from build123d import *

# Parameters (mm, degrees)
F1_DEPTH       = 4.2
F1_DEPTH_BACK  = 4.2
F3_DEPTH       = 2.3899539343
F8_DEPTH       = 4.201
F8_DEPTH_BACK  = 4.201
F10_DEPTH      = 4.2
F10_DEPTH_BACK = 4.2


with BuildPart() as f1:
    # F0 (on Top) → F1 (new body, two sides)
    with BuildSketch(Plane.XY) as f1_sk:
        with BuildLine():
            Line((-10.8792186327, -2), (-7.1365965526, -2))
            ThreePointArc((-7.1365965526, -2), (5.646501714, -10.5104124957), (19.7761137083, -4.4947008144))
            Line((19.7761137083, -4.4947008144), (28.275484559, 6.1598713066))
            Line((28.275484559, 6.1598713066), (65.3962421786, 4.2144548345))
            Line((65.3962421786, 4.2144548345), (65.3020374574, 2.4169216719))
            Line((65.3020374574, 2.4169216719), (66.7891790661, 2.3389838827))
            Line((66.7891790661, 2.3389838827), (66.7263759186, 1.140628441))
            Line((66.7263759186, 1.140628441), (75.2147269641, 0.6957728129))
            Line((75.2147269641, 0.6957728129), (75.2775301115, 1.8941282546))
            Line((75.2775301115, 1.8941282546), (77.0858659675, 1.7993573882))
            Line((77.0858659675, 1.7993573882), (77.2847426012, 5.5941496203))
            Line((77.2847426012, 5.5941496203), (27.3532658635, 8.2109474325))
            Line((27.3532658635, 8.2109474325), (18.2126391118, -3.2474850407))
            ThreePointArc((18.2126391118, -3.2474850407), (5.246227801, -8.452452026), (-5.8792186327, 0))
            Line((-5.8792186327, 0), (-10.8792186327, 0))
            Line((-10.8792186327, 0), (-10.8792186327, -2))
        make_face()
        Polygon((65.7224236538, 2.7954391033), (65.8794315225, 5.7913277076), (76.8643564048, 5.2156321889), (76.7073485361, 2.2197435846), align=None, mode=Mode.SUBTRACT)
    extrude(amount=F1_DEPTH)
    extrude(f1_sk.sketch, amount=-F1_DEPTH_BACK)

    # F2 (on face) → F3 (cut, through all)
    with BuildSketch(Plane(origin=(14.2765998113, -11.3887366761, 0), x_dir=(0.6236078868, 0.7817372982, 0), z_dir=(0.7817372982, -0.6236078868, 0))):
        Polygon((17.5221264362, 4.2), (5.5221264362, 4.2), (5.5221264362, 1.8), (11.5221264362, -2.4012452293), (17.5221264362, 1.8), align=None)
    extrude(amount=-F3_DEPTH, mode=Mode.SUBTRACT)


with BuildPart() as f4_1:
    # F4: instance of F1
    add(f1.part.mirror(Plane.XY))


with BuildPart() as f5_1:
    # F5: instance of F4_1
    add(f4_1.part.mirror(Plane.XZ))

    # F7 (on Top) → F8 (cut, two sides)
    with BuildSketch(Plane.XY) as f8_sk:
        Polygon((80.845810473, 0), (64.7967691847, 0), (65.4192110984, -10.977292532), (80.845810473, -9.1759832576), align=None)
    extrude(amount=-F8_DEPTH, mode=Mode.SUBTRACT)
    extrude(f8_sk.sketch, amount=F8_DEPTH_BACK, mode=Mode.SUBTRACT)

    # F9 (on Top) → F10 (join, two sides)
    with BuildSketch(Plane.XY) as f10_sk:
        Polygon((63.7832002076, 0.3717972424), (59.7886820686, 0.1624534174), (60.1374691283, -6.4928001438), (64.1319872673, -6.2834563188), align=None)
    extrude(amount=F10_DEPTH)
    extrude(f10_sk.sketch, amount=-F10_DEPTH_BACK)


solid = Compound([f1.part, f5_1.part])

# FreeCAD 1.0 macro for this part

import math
import FreeCAD as App
import Part
import Sketcher
from FreeCAD import Vector
Q = App.Units.Quantity


def add_polygon(sketch, points):
    """Adds a closed chain of lines whose ends are joined by coincident constraints."""
    first, n = sketch.GeometryCount, len(points)
    for a, b in zip(points, points[1:] + points[:1]):
        sketch.addGeometry(Part.LineSegment(App.Vector(*a, 0), App.Vector(*b, 0)), False)
    for i in range(n):
        sketch.addConstraint(Sketcher.Constraint("Coincident", first + i, 2, first + (i + 1) % n, 1))

doc = App.newDocument("Part")
body = doc.addObject("PartDesign::Body", "Body")

# Sketch on XY plane
sketch1 = body.newObject("Sketcher::SketchObject", "Sketch")
sketch1.AttachmentSupport = (doc.getObject("XY_Plane"), [""])
sketch1.MapMode = "FlatFace"
sketch1.addGeometry(Part.LineSegment(Vector(-10.9, -2, 0), Vector(-7.1, -2, 0)), False)  # 0
sketch1.addGeometry(Part.ArcOfCircle(Part.Circle(Vector(7.1, 5.6, 0), Vector(0, 0, 1), 16.2), math.radians(-152), math.radians(-39)), False)  # 1
sketch1.addGeometry(Part.LineSegment(Vector(19.8, -4.5, 0), Vector(28.3, 6.2, 0)), False)  # 2
sketch1.addGeometry(Part.LineSegment(Vector(28.3, 6.2, 0), Vector(65.4, 4.2, 0)), False)  # 3
sketch1.addGeometry(Part.LineSegment(Vector(65.4, 4.2, 0), Vector(65.3, 2.4, 0)), False)  # 4
sketch1.addGeometry(Part.LineSegment(Vector(65.3, 2.4, 0), Vector(66.8, 2.3, 0)), False)  # 5
sketch1.addGeometry(Part.LineSegment(Vector(66.8, 2.3, 0), Vector(66.7, 1.1, 0)), False)  # 6
sketch1.addGeometry(Part.LineSegment(Vector(66.7, 1.1, 0), Vector(75.2, 0.7, 0)), False)  # 7
sketch1.addGeometry(Part.LineSegment(Vector(75.2, 0.7, 0), Vector(75.3, 1.9, 0)), False)  # 8
sketch1.addGeometry(Part.LineSegment(Vector(75.3, 1.9, 0), Vector(77.1, 1.8, 0)), False)  # 9
sketch1.addGeometry(Part.LineSegment(Vector(77.1, 1.8, 0), Vector(77.3, 5.6, 0)), False)  # 10
sketch1.addGeometry(Part.LineSegment(Vector(77.3, 5.6, 0), Vector(27.4, 8.2, 0)), False)  # 11
sketch1.addGeometry(Part.LineSegment(Vector(27.4, 8.2, 0), Vector(18.2, -3.2, 0)), False)  # 12
sketch1.addGeometry(Part.ArcOfCircle(Part.Circle(Vector(7.1, 5.6, 0), Vector(0, 0, 1), 14.2), math.radians(-157), math.radians(-39)), False)  # 13
sketch1.addGeometry(Part.LineSegment(Vector(-5.9, 0, 0), Vector(-10.9, 0, 0)), False)  # 14
sketch1.addGeometry(Part.LineSegment(Vector(-10.9, 0, 0), Vector(-10.9, -2, 0)), False)  # 15
add_polygon(sketch1, [(76.7, 2.2), (65.7, 2.8), (65.9, 5.8), (76.9, 5.2)])  # lines 16-19
sketch1.addConstraint([
    Sketcher.Constraint("Coincident", 0, 2, 1, 1),
    Sketcher.Constraint("Tangent", 1, 2, 2, 1),
    Sketcher.Constraint("Coincident", 2, 2, 3, 1),
    Sketcher.Constraint("Coincident", 3, 2, 4, 1),
    Sketcher.Constraint("Coincident", 4, 2, 5, 1),
    Sketcher.Constraint("Coincident", 5, 2, 6, 1),
    Sketcher.Constraint("Coincident", 6, 2, 7, 1),
    Sketcher.Constraint("Coincident", 7, 2, 8, 1),
    Sketcher.Constraint("Coincident", 8, 2, 9, 1),
    Sketcher.Constraint("Coincident", 9, 2, 10, 1),
    Sketcher.Constraint("Coincident", 10, 2, 11, 1),
    Sketcher.Constraint("Coincident", 11, 2, 12, 1),
    Sketcher.Constraint("Tangent", 12, 2, 13, 2),
    Sketcher.Constraint("Coincident", 13, 1, 14, 1),
    Sketcher.Constraint("Coincident", 14, 2, 15, 1),
    Sketcher.Constraint("Coincident", 15, 2, 0, 1),
    Sketcher.Constraint("Horizontal", 0),
    Sketcher.Constraint("Horizontal", 14),
    Sketcher.Constraint("Vertical", 15),
    Sketcher.Constraint("Coincident", 13, 3, 1, 3),
    Sketcher.Constraint("PointOnObject", 13, 1, -1),
    Sketcher.Constraint("Perpendicular", 3, 4),
    Sketcher.Constraint("Perpendicular", 4, 5),
    Sketcher.Constraint("Perpendicular", 5, 6),
    Sketcher.Constraint("Perpendicular", 6, 7),
    Sketcher.Constraint("Perpendicular", 7, 8),
    Sketcher.Constraint("Perpendicular", 8, 9),
    Sketcher.Constraint("Perpendicular", 9, 10),
    Sketcher.Constraint("Perpendicular", 10, 11),
    Sketcher.Constraint("Parallel", 2, 12),
    Sketcher.Constraint("Parallel", 11, 16),
    Sketcher.Constraint("Perpendicular", 16, 17),
    Sketcher.Constraint("Perpendicular", 17, 18),
    Sketcher.Constraint("Perpendicular", 18, 19),
    Sketcher.Constraint("Equal", 6, 8),
    Sketcher.Constraint("DistanceX", 14, 2, 14, 1, Q("5 mm")),
    Sketcher.Constraint("DistanceY", 15, 2, 15, 1, Q("2 mm")),
    Sketcher.Constraint("Angle", 3, Q("-3 deg")),
    Sketcher.Constraint("Distance", 11, Q("50 mm")),
    Sketcher.Constraint("Distance", 16, Q("11 mm")),
    Sketcher.Constraint("Distance", 17, Q("3 mm")),
    Sketcher.Constraint("Distance", 4, Q("1.8 mm")),
    Sketcher.Constraint("Distance", 6, Q("1.2 mm")),
    Sketcher.Constraint("Distance", 7, Q("8.5 mm")),
    Sketcher.Constraint("Distance", 10, Q("3.8 mm")),
    Sketcher.Constraint("Radius", 1, Q("16.165909 mm")),
    Sketcher.Constraint("Radius", 13, Q("14.165909 mm")),
    Sketcher.Constraint("Distance", 3, Q("37.1717 mm")),
    Sketcher.Constraint("DistanceY", 1, 2, -1, 1, Q("4.494701 mm")),
    Sketcher.Constraint("DistanceY", 7, 2, 2, 2, Q("5.464098 mm")),
    Sketcher.Constraint("DistanceY", 6, 2, 17, 2, Q("4.650699 mm")),
    Sketcher.Constraint("Distance", 2, Q("13.629351 mm")),
    Sketcher.Constraint("Distance", 12, Q("14.657651 mm")),
    Sketcher.Constraint("DistanceX", -1, 1, 1, 3, Q("7.13862 mm")),
    Sketcher.Constraint("DistanceX", -1, 1, 17, 2, Q("65.879432 mm")),
])
pad1 = body.newObject("PartDesign::Pad", "Pad")
pad1.Profile = sketch1
pad1.Type = "TwoLengths"
pad1.Length = 4.2
pad1.Length2 = 4.2

# Sketch on an angled plane
sketch2 = body.newObject("Sketcher::SketchObject", "Sketch001")
sketch2.Placement = App.Placement(Vector(14.2766, -11.388737, 0), App.Rotation(Vector(0.623607887, 0.781737298, 0), Vector(0, 0, 1), Vector(0.781737298, -0.623607887, 0), "ZXY"))
add_polygon(sketch2, [(17.5, 4.2), (5.5, 4.2), (5.5, 1.8), (11.5, -2.4), (17.5, 1.8)])  # lines 0-4
sketch2.addConstraint([
    Sketcher.Constraint("Horizontal", 0),
    Sketcher.Constraint("Vertical", 1),
    Sketcher.Constraint("Vertical", 4),
    Sketcher.Constraint("Horizontal", 1, 2, 3, 2),
    Sketcher.Constraint("Equal", 2, 3),
    Sketcher.Constraint("DistanceX", 0, 2, 0, 1, Q("12 mm")),
    Sketcher.Constraint("Angle", 2, Q("-35 deg")),
    Sketcher.Constraint("DistanceY", 1, 2, 1, 1, Q("2.4 mm")),
    Sketcher.Constraint("DistanceY", -1, 1, 0, 2, Q("4.2 mm")),
    Sketcher.Constraint("DistanceX", -1, 1, 0, 2, Q("5.522126 mm")),
])
pocket1 = body.newObject("PartDesign::Pocket", "Pocket")
pocket1.Profile = sketch2
pocket1.Type = "ThroughAll"
body2 = doc.addObject("PartDesign::Body", "Body001")
doc.recompute()

mirroring = doc.addObject("Part::Mirroring", "Mirroring")
mirroring.Source = body
mirroring.Base = Vector(0, 0, 0)
mirroring.Normal = Vector(0, 0, 1)
body2.BaseFeature = mirroring
doc.recompute()
body3 = doc.addObject("PartDesign::Body", "Body002")
doc.recompute()

mirroring2 = doc.addObject("Part::Mirroring", "Mirroring001")
mirroring2.Source = body2
mirroring2.Base = Vector(0, 0, 0)
mirroring2.Normal = Vector(0, -1, 0)
body3.BaseFeature = mirroring2
doc.recompute()

# Sketch on XY plane
sketch3 = body3.newObject("Sketcher::SketchObject", "Sketch002")
sketch3.AttachmentSupport = (doc.getObject("XY_Plane002"), [""])
sketch3.MapMode = "FlatFace"
add_polygon(sketch3, [(81, 0), (65, 0), (65, -11), (81, -9)])  # lines 0-3
sketch3.addConstraint([
    Sketcher.Constraint("Horizontal", 0),
    Sketcher.Constraint("Vertical", 3),
    Sketcher.Constraint("PointOnObject", 0, 2, -1),
    Sketcher.Constraint("DistanceX", 0, 2, 0, 1, Q("16.049041 mm")),
    Sketcher.Constraint("DistanceX", 1, 2, 2, 2, Q("15.426599 mm")),
    Sketcher.Constraint("Distance", 2, Q("15.53141 mm")),
    Sketcher.Constraint("DistanceY", 3, 1, 3, 2, Q("9.175983 mm")),
    Sketcher.Constraint("DistanceX", -1, 1, 0, 2, Q("64.796769 mm")),
])
pocket2 = body3.newObject("PartDesign::Pocket", "Pocket001")
pocket2.Profile = sketch3
pocket2.Type = "ThroughAll"
pocket2.Midplane = True

# Sketch on XY plane
sketch4 = body3.newObject("Sketcher::SketchObject", "Sketch003")
sketch4.AttachmentSupport = (doc.getObject("XY_Plane002"), [""])
sketch4.MapMode = "FlatFace"
add_polygon(sketch4, [(63.8, 0.4), (59.8, 0.2), (60.1, -6.5), (64.1, -6.3)])  # lines 0-3
sketch4.addConstraint([
    Sketcher.Constraint("Perpendicular", 0, 1),
    Sketcher.Constraint("Perpendicular", 1, 2),
    Sketcher.Constraint("Perpendicular", 2, 3),
    Sketcher.Constraint("Angle", 0, Q("-177 deg")),
    Sketcher.Constraint("Distance", 0, Q("4 mm")),
    Sketcher.Constraint("DistanceY", 1, 2, -1, 1, Q("6.4928 mm")),
    Sketcher.Constraint("DistanceX", -1, 1, 3, 2, Q("63.7832 mm")),
    Sketcher.Constraint("DistanceX", -1, 1, 1, 2, Q("60.137469 mm")),
])
pad2 = body3.newObject("PartDesign::Pad", "Pad001")
pad2.Profile = sketch4
pad2.Type = "TwoLengths"
pad2.Length = 4.2
pad2.Length2 = 4.2
body2.Visibility = False
mirroring.Visibility = False
mirroring2.Visibility = False

doc.recompute()
